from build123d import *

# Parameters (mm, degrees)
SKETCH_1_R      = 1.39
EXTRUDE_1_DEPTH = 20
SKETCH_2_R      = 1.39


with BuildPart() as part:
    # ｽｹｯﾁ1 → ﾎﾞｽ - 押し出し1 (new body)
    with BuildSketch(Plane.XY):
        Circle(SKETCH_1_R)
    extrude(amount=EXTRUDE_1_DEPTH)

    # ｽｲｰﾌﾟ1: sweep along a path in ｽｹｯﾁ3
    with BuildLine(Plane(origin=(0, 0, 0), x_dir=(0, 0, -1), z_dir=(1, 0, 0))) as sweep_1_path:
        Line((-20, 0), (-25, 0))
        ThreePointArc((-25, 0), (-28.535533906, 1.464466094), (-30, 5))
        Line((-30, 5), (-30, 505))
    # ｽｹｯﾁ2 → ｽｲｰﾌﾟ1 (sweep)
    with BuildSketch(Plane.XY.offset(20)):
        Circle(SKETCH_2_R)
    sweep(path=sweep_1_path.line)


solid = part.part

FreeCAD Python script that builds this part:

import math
import FreeCAD as App
import Part
import Sketcher
from FreeCAD import Vector
Q = App.Units.Quantity

doc = App.newDocument("Part")
body = doc.addObject("PartDesign::Body", "Body")

sketch1 = body.newObject("Sketcher::SketchObject", "Sketch")
sketch1.AttachmentSupport = (doc.getObject("XY_Plane"), [""])
sketch1.MapMode = "FlatFace"
sketch1.addGeometry(Part.Circle(Vector(0, 0, 0), Vector(0, 0, 1), 1.4), False)
sketch1.addConstraint([
    Sketcher.Constraint("Coincident", 0, 3, -1, 1),
    Sketcher.Constraint("Diameter", 0, Q("2.78 mm")),
])
pad1 = body.newObject("PartDesign::Pad", "Pad")
pad1.Profile = sketch1
pad1.Length = 20

sketch2 = body.newObject("Sketcher::SketchObject", "Sketch001")
sketch2.AttachmentSupport = (doc.getObject("XY_Plane"), [""])
sketch2.MapMode = "FlatFace"
sketch2.AttachmentOffset = App.Placement(Vector(0, 0, 20), App.Rotation())
sketch2.addGeometry(Part.Circle(Vector(0, 0, 0), Vector(0, 0, 1), 1.4), False)
sketch2.addConstraint([
    Sketcher.Constraint("Coincident", 0, 3, -1, 1),
    Sketcher.Constraint("Diameter", 0, Q("2.78 mm")),
])

sketch3 = body.newObject("Sketcher::SketchObject", "Sketch002")
sketch3.AttachmentSupport = (doc.getObject("YZ_Plane"), [""])
sketch3.MapMode = "FlatFace"
sketch3.addGeometry([
    Part.LineSegment(Vector(0, 20, 0), Vector(0, 25, 0)),
    Part.ArcOfCircle(Part.Circle(Vector(5, 25, 0), Vector(0, 0, 1), 5), math.radians(90), math.radians(180)),
    Part.LineSegment(Vector(5, 30, 0), Vector(505, 30, 0)),
], False)
sketch3.addConstraint([
    Sketcher.Constraint("Tangent", 0, 2, 1, 2),
    Sketcher.Constraint("Tangent", 1, 1, 2, 1),
    Sketcher.Constraint("Vertical", 0),
    Sketcher.Constraint("Horizontal", 2),
    Sketcher.Constraint("PointOnObject", 0, 1, -2),
    Sketcher.Constraint("Radius", 1, Q("5 mm")),
    Sketcher.Constraint("DistanceX", 2, 1, 2, 2, Q("500 mm")),
    Sketcher.Constraint("DistanceY", 0, 1, 0, 2, Q("5 mm")),
    Sketcher.Constraint("DistanceY", -1, 1, 1, 3, Q("25 mm")),
])
doc.recompute()

additivepipe = body.newObject("PartDesign::AdditivePipe", "AdditivePipe")
additivepipe.Profile = sketch2
additivepipe.Spine = (sketch3, ["Edge1", "Edge2", "Edge3"])

doc.recompute()
